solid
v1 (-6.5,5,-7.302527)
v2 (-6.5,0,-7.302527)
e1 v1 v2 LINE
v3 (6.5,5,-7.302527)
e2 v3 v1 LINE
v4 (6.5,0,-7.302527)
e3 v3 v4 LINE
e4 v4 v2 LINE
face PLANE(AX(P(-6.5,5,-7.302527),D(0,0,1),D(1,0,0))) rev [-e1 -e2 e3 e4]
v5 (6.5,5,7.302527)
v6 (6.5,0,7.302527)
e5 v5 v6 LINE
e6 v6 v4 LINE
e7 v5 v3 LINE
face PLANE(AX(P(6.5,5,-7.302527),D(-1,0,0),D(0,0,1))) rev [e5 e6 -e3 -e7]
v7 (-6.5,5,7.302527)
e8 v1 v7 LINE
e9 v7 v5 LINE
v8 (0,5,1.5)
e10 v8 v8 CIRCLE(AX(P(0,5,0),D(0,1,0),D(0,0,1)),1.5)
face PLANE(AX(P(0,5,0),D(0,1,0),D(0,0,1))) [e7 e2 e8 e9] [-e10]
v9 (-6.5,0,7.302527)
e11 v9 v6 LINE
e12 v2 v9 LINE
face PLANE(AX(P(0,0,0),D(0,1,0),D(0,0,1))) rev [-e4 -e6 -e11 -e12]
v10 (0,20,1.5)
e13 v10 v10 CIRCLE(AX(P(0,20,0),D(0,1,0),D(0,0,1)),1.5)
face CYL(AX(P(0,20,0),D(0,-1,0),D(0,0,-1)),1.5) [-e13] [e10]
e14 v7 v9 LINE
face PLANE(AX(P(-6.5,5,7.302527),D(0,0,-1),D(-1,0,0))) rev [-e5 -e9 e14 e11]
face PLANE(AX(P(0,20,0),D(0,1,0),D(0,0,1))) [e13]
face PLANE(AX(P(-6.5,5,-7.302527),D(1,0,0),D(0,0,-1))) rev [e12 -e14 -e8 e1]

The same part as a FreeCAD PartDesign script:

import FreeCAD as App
import Part
import Sketcher
Q = App.Units.Quantity

doc = App.newDocument("Part")
params = doc.addObject("Spreadsheet::Sheet", "Params")
for row, (alias, value) in enumerate([
    ("sketch1_width", "13 mm"),
    ("pad1_length", "5 mm"),
    ("sketch2_diameter", "3 mm"),
    ("pad2_length", "15 mm"),
], start=1):
    params.set(f"A{row}", alias)
    params.set(f"B{row}", "=" + value)
    params.setAlias(f"B{row}", alias)

body = doc.addObject("PartDesign::Body", "Body")

# Sketch on XZ plane
sketch1 = body.newObject("Sketcher::SketchObject", "Sketch")
sketch1.AttachmentSupport = (doc.getObject("XZ_Plane"), [""])
sketch1.MapMode = "FlatFace"
sketch1.addGeometry([
    Part.LineSegment(App.Vector(-6, -7, 0), App.Vector(-6, 7, 0)),
    Part.LineSegment(App.Vector(-6, 7, 0), App.Vector(6, 7, 0)),
    Part.LineSegment(App.Vector(6, 7, 0), App.Vector(6, -7, 0)),
    Part.LineSegment(App.Vector(6, -7, 0), App.Vector(-6, -7, 0)),
], False)
sketch1.addConstraint([
    Sketcher.Constraint("Coincident", 0, 2, 1, 1),
    Sketcher.Constraint("Coincident", 1, 2, 2, 1),
    Sketcher.Constraint("Coincident", 2, 2, 3, 1),
    Sketcher.Constraint("Coincident", 3, 2, 0, 1),
    Sketcher.Constraint("Vertical", 0),
    Sketcher.Constraint("Horizontal", 1),
    Sketcher.Constraint("Vertical", 2),
    Sketcher.Constraint("Horizontal", 3),
    Sketcher.Constraint("Symmetric", 0, 2, 2, 2, -1, 1),
    Sketcher.Constraint("DistanceX", 1, 1, 1, 2, Q("13 mm")),
    Sketcher.Constraint("DistanceY", 0, 1, 0, 2, Q("14.605054 mm")),
])
sketch1.setExpression("Constraints[9]", "Params.sketch1_width")
pad1 = body.newObject("PartDesign::Pad", "Pad")
pad1.Profile = sketch1
pad1.setExpression("Length", "Params.pad1_length")
pad1.Reversed = True

# Sketch on XZ plane
sketch2 = body.newObject("Sketcher::SketchObject", "Sketch001")
sketch2.AttachmentSupport = (doc.getObject("XZ_Plane"), [""])
sketch2.MapMode = "FlatFace"
sketch2.AttachmentOffset = App.Placement(App.Vector(0, 0, -5), App.Rotation())
sketch2.addGeometry(Part.Circle(App.Vector(0, 0, 0), App.Vector(0, 0, 1), 1.5), False)
sketch2.addConstraint([
    Sketcher.Constraint("Coincident", 0, 3, -1, 1),
    Sketcher.Constraint("Diameter", 0, Q("3 mm")),
])
sketch2.setExpression("Constraints[1]", "Params.sketch2_diameter")
pad2 = body.newObject("PartDesign::Pad", "Pad001")
pad2.Profile = sketch2
pad2.setExpression("Length", "Params.pad2_length")
pad2.Reversed = True

doc.recompute()
